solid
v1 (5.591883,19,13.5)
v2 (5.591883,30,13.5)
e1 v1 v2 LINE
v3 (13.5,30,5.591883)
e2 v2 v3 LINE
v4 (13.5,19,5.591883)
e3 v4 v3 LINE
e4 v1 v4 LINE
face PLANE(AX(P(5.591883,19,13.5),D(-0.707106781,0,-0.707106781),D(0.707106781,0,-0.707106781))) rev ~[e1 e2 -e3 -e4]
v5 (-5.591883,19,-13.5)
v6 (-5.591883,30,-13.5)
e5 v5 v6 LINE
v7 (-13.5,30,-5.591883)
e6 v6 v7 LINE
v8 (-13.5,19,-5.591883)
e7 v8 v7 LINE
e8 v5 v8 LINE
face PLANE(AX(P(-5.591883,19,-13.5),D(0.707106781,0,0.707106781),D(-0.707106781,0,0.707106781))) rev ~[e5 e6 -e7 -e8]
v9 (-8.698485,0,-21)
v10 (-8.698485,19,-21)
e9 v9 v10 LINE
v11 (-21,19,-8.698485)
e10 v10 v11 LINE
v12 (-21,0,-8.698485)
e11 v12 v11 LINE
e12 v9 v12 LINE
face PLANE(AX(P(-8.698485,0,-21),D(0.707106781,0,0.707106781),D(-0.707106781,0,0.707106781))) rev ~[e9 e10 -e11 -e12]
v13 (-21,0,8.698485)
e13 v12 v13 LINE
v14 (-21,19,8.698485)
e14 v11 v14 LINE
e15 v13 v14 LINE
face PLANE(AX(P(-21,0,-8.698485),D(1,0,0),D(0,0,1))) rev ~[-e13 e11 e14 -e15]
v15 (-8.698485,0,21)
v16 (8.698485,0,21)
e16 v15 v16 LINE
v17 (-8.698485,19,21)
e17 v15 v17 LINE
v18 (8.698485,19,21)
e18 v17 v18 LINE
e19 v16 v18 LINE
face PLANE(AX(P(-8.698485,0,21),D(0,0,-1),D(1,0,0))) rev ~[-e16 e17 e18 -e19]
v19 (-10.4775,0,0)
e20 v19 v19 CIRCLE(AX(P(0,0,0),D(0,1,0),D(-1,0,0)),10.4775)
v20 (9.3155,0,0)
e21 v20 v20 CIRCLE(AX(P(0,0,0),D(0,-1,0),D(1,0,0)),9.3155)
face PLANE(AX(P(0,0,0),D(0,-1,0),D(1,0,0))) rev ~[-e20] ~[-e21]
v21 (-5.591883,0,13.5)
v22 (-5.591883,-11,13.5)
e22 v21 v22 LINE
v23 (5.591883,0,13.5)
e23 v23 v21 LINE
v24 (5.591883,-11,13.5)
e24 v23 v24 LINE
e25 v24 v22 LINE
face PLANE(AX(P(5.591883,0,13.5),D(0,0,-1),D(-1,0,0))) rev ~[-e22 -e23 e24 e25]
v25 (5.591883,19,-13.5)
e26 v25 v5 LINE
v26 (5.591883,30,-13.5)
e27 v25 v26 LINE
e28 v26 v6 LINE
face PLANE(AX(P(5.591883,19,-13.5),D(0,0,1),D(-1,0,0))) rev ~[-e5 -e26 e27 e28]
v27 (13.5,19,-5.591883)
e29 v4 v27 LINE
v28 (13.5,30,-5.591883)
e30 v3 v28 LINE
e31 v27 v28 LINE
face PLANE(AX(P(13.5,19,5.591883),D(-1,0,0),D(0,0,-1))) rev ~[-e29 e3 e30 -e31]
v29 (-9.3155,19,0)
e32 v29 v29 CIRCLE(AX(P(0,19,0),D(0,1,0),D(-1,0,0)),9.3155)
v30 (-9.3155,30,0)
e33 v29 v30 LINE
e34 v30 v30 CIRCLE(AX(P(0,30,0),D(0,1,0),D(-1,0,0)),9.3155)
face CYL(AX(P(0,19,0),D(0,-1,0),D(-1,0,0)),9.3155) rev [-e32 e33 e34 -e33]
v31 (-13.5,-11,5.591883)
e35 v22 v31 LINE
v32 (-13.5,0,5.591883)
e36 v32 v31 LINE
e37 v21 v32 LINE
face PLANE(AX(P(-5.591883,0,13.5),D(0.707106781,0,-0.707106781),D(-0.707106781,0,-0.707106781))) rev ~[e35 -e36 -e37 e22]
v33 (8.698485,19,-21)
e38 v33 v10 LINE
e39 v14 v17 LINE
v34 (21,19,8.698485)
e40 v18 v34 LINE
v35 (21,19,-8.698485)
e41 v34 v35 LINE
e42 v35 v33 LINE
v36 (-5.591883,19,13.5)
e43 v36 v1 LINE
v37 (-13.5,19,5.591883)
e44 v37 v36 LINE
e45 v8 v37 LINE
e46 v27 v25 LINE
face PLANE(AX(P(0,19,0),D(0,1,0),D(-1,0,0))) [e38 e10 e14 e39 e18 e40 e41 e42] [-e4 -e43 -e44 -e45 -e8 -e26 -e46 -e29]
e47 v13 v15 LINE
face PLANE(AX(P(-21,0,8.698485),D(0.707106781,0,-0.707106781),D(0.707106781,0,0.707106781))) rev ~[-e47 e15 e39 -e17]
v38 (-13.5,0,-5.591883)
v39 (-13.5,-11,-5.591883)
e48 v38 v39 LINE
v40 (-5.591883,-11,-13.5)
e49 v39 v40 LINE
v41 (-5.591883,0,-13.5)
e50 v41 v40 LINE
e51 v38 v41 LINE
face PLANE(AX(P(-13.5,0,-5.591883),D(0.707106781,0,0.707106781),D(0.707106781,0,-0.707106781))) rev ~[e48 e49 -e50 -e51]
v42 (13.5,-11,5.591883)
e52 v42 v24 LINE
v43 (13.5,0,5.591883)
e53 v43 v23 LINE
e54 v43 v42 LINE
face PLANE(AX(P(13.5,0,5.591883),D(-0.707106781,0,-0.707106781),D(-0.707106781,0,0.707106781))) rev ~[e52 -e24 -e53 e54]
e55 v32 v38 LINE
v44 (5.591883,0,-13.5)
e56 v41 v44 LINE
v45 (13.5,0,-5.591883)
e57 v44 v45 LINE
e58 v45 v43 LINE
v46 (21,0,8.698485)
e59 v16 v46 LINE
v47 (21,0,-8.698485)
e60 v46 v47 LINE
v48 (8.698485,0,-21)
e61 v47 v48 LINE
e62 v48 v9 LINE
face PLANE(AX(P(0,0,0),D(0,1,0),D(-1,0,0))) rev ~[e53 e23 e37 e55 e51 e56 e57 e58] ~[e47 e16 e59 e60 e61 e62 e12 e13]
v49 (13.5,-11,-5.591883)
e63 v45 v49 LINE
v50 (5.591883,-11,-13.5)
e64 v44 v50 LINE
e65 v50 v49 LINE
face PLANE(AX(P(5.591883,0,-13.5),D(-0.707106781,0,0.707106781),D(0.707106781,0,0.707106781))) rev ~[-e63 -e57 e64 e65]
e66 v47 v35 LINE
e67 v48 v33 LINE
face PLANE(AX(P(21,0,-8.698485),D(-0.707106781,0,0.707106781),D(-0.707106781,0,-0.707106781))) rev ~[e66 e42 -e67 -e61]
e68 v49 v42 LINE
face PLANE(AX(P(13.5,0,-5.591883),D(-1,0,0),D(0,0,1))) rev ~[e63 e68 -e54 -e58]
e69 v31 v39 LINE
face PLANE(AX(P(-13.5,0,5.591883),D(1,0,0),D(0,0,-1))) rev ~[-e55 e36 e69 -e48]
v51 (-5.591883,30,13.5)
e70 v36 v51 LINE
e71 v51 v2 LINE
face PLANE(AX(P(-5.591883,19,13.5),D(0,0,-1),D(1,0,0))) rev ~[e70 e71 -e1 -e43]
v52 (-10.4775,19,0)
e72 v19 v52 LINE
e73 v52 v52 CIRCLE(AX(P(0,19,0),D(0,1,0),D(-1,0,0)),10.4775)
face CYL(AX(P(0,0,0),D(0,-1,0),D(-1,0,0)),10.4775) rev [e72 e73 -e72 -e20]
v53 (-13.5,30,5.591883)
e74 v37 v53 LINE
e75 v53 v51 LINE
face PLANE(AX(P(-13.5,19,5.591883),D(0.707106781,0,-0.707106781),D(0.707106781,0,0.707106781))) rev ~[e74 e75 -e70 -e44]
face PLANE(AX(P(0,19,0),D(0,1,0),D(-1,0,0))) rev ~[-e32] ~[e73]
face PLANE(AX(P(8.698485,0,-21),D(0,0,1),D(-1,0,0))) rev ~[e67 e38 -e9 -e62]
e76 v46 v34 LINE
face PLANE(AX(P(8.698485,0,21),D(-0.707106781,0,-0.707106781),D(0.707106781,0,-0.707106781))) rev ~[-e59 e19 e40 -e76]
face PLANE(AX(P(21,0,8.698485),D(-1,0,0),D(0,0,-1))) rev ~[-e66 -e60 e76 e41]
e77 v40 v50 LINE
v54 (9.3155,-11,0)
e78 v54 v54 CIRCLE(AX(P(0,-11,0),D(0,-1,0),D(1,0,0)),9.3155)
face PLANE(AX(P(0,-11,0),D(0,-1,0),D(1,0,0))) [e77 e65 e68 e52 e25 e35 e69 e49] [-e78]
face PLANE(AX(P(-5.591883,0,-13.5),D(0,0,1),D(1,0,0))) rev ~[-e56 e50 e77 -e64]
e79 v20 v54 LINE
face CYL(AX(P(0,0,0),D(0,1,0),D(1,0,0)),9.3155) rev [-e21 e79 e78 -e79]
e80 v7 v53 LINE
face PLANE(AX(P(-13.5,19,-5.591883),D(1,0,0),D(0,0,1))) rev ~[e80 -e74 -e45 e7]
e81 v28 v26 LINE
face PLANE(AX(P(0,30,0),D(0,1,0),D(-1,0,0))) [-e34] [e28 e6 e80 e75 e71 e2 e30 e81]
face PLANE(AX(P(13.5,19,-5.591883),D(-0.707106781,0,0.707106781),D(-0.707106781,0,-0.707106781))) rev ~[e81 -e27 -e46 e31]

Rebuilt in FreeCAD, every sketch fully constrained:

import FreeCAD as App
import Part
import Sketcher

V = App.Vector


def add_polygon(sketch, points):
    """Adds a closed chain of lines whose ends are joined by coincident constraints."""
    first, n = sketch.GeometryCount, len(points)
    for a, b in zip(points, points[1:] + points[:1]):
        sketch.addGeometry(Part.LineSegment(App.Vector(*a, 0), App.Vector(*b, 0)), False)
    for i in range(n):
        sketch.addConstraint(Sketcher.Constraint("Coincident", first + i, 2, first + (i + 1) % n, 1))

doc = App.newDocument("Part")
body = doc.addObject("PartDesign::Body", "Body")

# Sketch on XZ plane
sketch1 = body.newObject("Sketcher::SketchObject", "Sketch")
sketch1.AttachmentSupport = (doc.getObject("XZ_Plane"), [""])
sketch1.MapMode = "FlatFace"
add_polygon(sketch1, [(13.5, -5.591883), (13.5, 5.591883), (5.591883, 13.5), (-5.591883, 13.5), (-13.5, 5.591883), (-13.5, -5.591883), (-5.591883, -13.5), (5.591883, -13.5)])  # lines 0-7
sketch1.addGeometry(Part.Circle(V(0, 0, 0), V(0, 0, 1), 9.3155), False)  # 8
sketch1.addConstraint([
    Sketcher.Constraint("Vertical", 0),
    Sketcher.Constraint("Horizontal", 2),
    Sketcher.Constraint("Vertical", 4),
    Sketcher.Constraint("Horizontal", 6),
    Sketcher.Constraint("Coincident", 8, 3, -1, 1),
    Sketcher.Constraint("Symmetric", 0, 2, 4, 2, -1, 1),
    Sketcher.Constraint("Symmetric", 1, 2, 5, 2, -1, 1),
    Sketcher.Constraint("Perpendicular", 1, 3),
    Sketcher.Constraint("Perpendicular", 5, 7),
    Sketcher.Constraint("Horizontal", 0, 2, 3, 2),
    Sketcher.Constraint("Horizontal", 4, 2, 7, 2),
    Sketcher.Constraint("Vertical", 2, 2, 5, 2),
    Sketcher.Constraint("Equal", 6, 0),
    Sketcher.Constraint("Diameter", 8, 18.631),
    Sketcher.Constraint("DistanceX", 3, 2, 0, 2, 27.0),
    Sketcher.Constraint("DistanceX", 2, 2, 2, 1, 11.183766),
])
pad1 = body.newObject("PartDesign::Pad", "Pad")
pad1.Profile = sketch1
pad1.Length = 11

# Sketch on XZ plane
sketch2 = body.newObject("Sketcher::SketchObject", "Sketch001")
sketch2.AttachmentSupport = (doc.getObject("XZ_Plane"), [""])
sketch2.MapMode = "FlatFace"
add_polygon(sketch2, [(-21, -8.698485), (-21, 8.698485), (-8.698485, 21), (8.698485, 21), (21, 8.698485), (21, -8.698485), (8.698485, -21), (-8.698485, -21)])  # lines 0-7
sketch2.addGeometry(Part.Circle(V(0, 0, 0), V(0, 0, 1), 10.4775), False)  # 8
sketch2.addConstraint([
    Sketcher.Constraint("Vertical", 0),
    Sketcher.Constraint("Horizontal", 2),
    Sketcher.Constraint("Vertical", 4),
    Sketcher.Constraint("Horizontal", 6),
    Sketcher.Constraint("Coincident", 8, 3, -1, 1),
    Sketcher.Constraint("Symmetric", 0, 2, 4, 2, -1, 1),
    Sketcher.Constraint("Symmetric", 1, 2, 5, 2, -1, 1),
    Sketcher.Constraint("Perpendicular", 1, 3),
    Sketcher.Constraint("Perpendicular", 5, 7),
    Sketcher.Constraint("Horizontal", 0, 2, 3, 2),
    Sketcher.Constraint("Horizontal", 4, 2, 7, 2),
    Sketcher.Constraint("Vertical", 2, 2, 5, 2),
    Sketcher.Constraint("Equal", 6, 0),
    Sketcher.Constraint("Diameter", 8, 20.955),
    Sketcher.Constraint("DistanceX", 0, 2, -1, 1, 21.0),
    Sketcher.Constraint("DistanceX", 2, 1, 2, 2, 17.39697),
])
pad2 = body.newObject("PartDesign::Pad", "Pad001")
pad2.Profile = sketch2
pad2.Length = 19
pad2.Reversed = True

# Sketch on XZ plane
sketch3 = body.newObject("Sketcher::SketchObject", "Sketch002")
sketch3.AttachmentSupport = (doc.getObject("XZ_Plane"), [""])
sketch3.MapMode = "FlatFace"
sketch3.AttachmentOffset = App.Placement(V(0, 0, -19), App.Rotation())
add_polygon(sketch3, [(-13.5, -5.591883), (-13.5, 5.591883), (-5.591883, 13.5), (5.591883, 13.5), (13.5, 5.591883), (13.5, -5.591883), (5.591883, -13.5), (-5.591883, -13.5)])  # lines 0-7
sketch3.addGeometry(Part.Circle(V(0, 0, 0), V(0, 0, 1), 9.3155), False)  # 8
sketch3.addConstraint([
    Sketcher.Constraint("Vertical", 0),
    Sketcher.Constraint("Horizontal", 2),
    Sketcher.Constraint("Vertical", 4),
    Sketcher.Constraint("Horizontal", 6),
    Sketcher.Constraint("Coincident", 8, 3, -1, 1),
    Sketcher.Constraint("Symmetric", 0, 2, 4, 2, -1, 1),
    Sketcher.Constraint("Symmetric", 1, 2, 5, 2, -1, 1),
    Sketcher.Constraint("Perpendicular", 1, 3),
    Sketcher.Constraint("Perpendicular", 5, 7),
    Sketcher.Constraint("Horizontal", 0, 2, 3, 2),
    Sketcher.Constraint("Horizontal", 4, 2, 7, 2),
    Sketcher.Constraint("Vertical", 2, 2, 5, 2),
    Sketcher.Constraint("Equal", 6, 0),
    Sketcher.Constraint("Diameter", 8, 18.631),
    Sketcher.Constraint("DistanceX", 0, 2, 3, 2, 27.0),
    Sketcher.Constraint("DistanceX", 2, 1, 2, 2, 11.183766),
])
pad3 = body.newObject("PartDesign::Pad", "Pad002")
pad3.Profile = sketch3
pad3.Length = 11
pad3.Reversed = True

doc.recompute()
